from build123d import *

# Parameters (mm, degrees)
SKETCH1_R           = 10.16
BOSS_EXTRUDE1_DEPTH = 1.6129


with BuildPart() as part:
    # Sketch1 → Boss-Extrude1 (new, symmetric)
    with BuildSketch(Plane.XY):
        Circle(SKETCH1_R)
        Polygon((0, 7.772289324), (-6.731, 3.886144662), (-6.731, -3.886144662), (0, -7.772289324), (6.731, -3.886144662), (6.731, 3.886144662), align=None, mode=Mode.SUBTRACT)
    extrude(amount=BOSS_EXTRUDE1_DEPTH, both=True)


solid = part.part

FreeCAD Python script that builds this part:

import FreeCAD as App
import Part
import Sketcher
Q = App.Units.Quantity

doc = App.newDocument("Part")
body = doc.addObject("PartDesign::Body", "Body")

sketch1 = doc.addObject("Sketcher::SketchObject", "Sketch")
body.addObject(sketch1)
sketch1.AttachmentSupport = (doc.XY_Plane, [""])
sketch1.MapMode = "FlatFace"
sketch1.addGeometry([
    Part.Circle(App.Vector(0, 0, 0), App.Vector(0, 0, 1), 10.16),
    Part.LineSegment(App.Vector(-6.731, 3.886145, 0), App.Vector(0, 7.772289, 0)),
    Part.LineSegment(App.Vector(0, 7.772289, 0), App.Vector(6.731, 3.886145, 0)),
    Part.LineSegment(App.Vector(6.731, 3.886145, 0), App.Vector(6.731, -3.886145, 0)),
    Part.LineSegment(App.Vector(6.731, -3.886145, 0), App.Vector(0, -7.772289, 0)),
    Part.LineSegment(App.Vector(0, -7.772289, 0), App.Vector(-6.731, -3.886145, 0)),
    Part.LineSegment(App.Vector(-6.731, -3.886145, 0), App.Vector(-6.731, 3.886145, 0)),
], False)
sketch1.addConstraint([
    Sketcher.Constraint("Coincident", 1, 2, 2, 1),
    Sketcher.Constraint("Coincident", 2, 2, 3, 1),
    Sketcher.Constraint("Coincident", 3, 2, 4, 1),
    Sketcher.Constraint("Coincident", 4, 2, 5, 1),
    Sketcher.Constraint("Coincident", 5, 2, 6, 1),
    Sketcher.Constraint("Coincident", 6, 2, 1, 1),
    Sketcher.Constraint("Vertical", 3),
    Sketcher.Constraint("Vertical", 6),
    Sketcher.Constraint("Coincident", 0, 3, -1, 1),
    Sketcher.Constraint("Symmetric", 1, 2, 4, 2, -1, 1),
    Sketcher.Constraint("Symmetric", 2, 2, 5, 2, -1, 1),
    Sketcher.Constraint("PointOnObject", 1, 2, -2),
    Sketcher.Constraint("Parallel", 1, 4),
    Sketcher.Constraint("Horizontal", 3, 2, 5, 2),
    Sketcher.Constraint("Diameter", 0, Q("0.8 in")),
    Sketcher.Constraint("Angle", 1, Q("30 deg")),
    Sketcher.Constraint("DistanceX", 5, 2, 3, 2, Q("0.53 in")),
    Sketcher.Constraint("DistanceY", 3, 2, 3, 1, Q("7.772289 mm")),
])
pad1 = doc.addObject("PartDesign::Pad", "Pad")
body.addObject(pad1)
pad1.Profile = sketch1
pad1.Length = Q("0.127 in")
pad1.Midplane = True

doc.recompute()
